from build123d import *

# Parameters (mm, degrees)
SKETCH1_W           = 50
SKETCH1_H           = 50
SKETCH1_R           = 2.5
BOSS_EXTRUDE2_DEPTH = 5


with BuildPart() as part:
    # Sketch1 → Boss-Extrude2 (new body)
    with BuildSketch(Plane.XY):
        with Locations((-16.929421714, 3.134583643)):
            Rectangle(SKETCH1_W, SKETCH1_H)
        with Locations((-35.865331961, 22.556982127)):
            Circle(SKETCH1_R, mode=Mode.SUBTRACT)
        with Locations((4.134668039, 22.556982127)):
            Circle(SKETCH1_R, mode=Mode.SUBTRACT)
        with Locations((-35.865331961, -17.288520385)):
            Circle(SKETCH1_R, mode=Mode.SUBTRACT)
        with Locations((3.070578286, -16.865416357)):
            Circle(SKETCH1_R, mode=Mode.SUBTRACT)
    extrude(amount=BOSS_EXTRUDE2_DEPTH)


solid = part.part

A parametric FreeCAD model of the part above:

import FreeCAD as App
import Part
import Sketcher
from FreeCAD import Vector
Q = App.Units.Quantity


def add_polygon(sketch, points):
    """Adds a closed chain of lines whose ends are joined by coincident constraints."""
    first, n = sketch.GeometryCount, len(points)
    for a, b in zip(points, points[1:] + points[:1]):
        sketch.addGeometry(Part.LineSegment(App.Vector(*a, 0), App.Vector(*b, 0)), False)
    for i in range(n):
        sketch.addConstraint(Sketcher.Constraint("Coincident", first + i, 2, first + (i + 1) % n, 1))

doc = App.newDocument("Part")
params = doc.addObject("Spreadsheet::Sheet", "Params")
for row, (alias, value) in enumerate([
    ("sketch1_diameter", "5 mm"),
    ("sketch1_width", "50 mm"),
    ("pad1_length", "5 mm"),
], start=1):
    params.set(f"A{row}", alias)
    params.set(f"B{row}", "=" + value)
    params.setAlias(f"B{row}", alias)

body = doc.addObject("PartDesign::Body", "Body")

# Sketch on XY plane
sketch1 = doc.addObject("Sketcher::SketchObject", "Sketch")
body.addObject(sketch1)
sketch1.AttachmentSupport = (doc.XY_Plane, [""])
sketch1.MapMode = "FlatFace"
add_polygon(sketch1, [(-41.929422, 28.134584), (-41.929422, -21.865416), (8.070578, -21.865416), (8.070578, 28.134584)])  # lines 0-3
sketch1.addGeometry(Part.Circle(Vector(-35.865332, -17.28852, 0), Vector(0, 0, 1), 2.5), False)  # 4
sketch1.addGeometry(Part.Circle(Vector(3.070578, -16.865416, 0), Vector(0, 0, 1), 2.5), False)  # 5
sketch1.addGeometry(Part.Circle(Vector(-35.865332, 22.556982, 0), Vector(0, 0, 1), 2.5), False)  # 6
sketch1.addGeometry(Part.Circle(Vector(4.134668, 22.556982, 0), Vector(0, 0, 1), 2.5), False)  # 7
sketch1.addConstraint(Sketcher.Constraint("Vertical", 0))
sketch1.addConstraint(Sketcher.Constraint("Horizontal", 1))
sketch1.addConstraint(Sketcher.Constraint("Vertical", 2))
sketch1.addConstraint(Sketcher.Constraint("Horizontal", 3))
sketch1.addConstraint(Sketcher.Constraint("Equal", 4, 5))
sketch1.addConstraint(Sketcher.Constraint("Equal", 5, 6))
sketch1.addConstraint(Sketcher.Constraint("Equal", 6, 7))
sketch1.addConstraint(Sketcher.Constraint("Horizontal", 6, 3, 7, 3))
sketch1.addConstraint(Sketcher.Constraint("Vertical", 4, 3, 6, 3))
sketch1.addConstraint(Sketcher.Constraint("Equal", 3, 0))
sketch1.addConstraint(Sketcher.Constraint("Diameter", 4, Q("5 mm")))
sketch1.addConstraint(Sketcher.Constraint("DistanceX", 1, 1, 1, 2, Q("50 mm")))
sketch1.addConstraint(Sketcher.Constraint("DistanceX", 6, 3, 7, 3, Q("40 mm")))
sketch1.addConstraint(Sketcher.Constraint("DistanceX", 0, 2, 5, 3, Q("45 mm")))
sketch1.addConstraint(Sketcher.Constraint("DistanceY", 0, 2, 5, 3, Q("5 mm")))
sketch1.addConstraint(Sketcher.Constraint("DistanceY", 5, 3, 6, 3, Q("39.422398 mm")))
sketch1.addConstraint(Sketcher.Constraint("DistanceX", 4, 3, -1, 1, Q("35.865332 mm")))
sketch1.addConstraint(Sketcher.Constraint("DistanceY", 4, 3, -1, 1, Q("17.28852 mm")))
sketch1.addConstraint(Sketcher.Constraint("DistanceX", -1, 1, 5, 3, Q("3.070578 mm")))
sketch1.addConstraint(Sketcher.Constraint("DistanceY", 5, 3, -1, 1, Q("16.865416 mm")))
sketch1.setExpression("Constraints[14]", "Params.sketch1_diameter")
sketch1.setExpression("Constraints[15]", "Params.sketch1_width")
pad1 = doc.addObject("PartDesign::Pad", "Pad")
body.addObject(pad1)
pad1.Profile = sketch1
pad1.setExpression("Length", "Params.pad1_length")

doc.recompute()
